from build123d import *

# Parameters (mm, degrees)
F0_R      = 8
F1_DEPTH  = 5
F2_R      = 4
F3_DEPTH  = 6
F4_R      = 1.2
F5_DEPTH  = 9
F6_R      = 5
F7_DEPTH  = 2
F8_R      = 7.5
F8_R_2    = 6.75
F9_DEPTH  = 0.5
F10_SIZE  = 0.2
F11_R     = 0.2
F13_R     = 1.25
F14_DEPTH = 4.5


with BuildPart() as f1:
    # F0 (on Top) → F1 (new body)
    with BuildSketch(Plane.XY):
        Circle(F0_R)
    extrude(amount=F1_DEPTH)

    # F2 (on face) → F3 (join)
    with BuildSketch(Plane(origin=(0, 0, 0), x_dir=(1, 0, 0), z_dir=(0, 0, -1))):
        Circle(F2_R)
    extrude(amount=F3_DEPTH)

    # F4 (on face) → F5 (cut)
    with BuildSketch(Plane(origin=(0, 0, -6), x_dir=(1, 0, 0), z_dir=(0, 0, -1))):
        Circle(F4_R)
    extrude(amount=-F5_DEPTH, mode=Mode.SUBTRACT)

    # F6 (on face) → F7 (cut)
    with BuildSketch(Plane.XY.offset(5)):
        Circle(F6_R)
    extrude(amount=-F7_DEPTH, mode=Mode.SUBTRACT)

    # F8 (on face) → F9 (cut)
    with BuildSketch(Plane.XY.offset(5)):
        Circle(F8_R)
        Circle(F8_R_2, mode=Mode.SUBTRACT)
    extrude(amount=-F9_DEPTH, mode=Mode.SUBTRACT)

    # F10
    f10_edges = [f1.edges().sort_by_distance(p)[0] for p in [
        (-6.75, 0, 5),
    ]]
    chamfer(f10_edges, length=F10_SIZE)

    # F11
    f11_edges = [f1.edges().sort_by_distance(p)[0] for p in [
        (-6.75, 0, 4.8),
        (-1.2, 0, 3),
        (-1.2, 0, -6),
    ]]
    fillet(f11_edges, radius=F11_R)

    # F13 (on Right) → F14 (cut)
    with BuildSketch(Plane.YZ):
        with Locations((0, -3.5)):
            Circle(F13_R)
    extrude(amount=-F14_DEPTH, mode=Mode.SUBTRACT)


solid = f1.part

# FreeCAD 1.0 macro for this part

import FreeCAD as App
import Part
import Sketcher
from FreeCAD import Vector


def edges_at(feature, points):
    """Names of the edges that pass closest to the given points."""
    edges = feature.Shape.Edges
    near = lambda p: min(range(len(edges)), key=lambda i: edges[i].distToShape(Part.Vertex(*p))[0])
    return sorted({f"Edge{near(p) + 1}" for p in points})

doc = App.newDocument("Part")
body = doc.addObject("PartDesign::Body", "Body")

sketch1 = body.newObject("Sketcher::SketchObject", "Sketch")
sketch1.AttachmentSupport = (doc.getObject("XY_Plane"), [""])
sketch1.MapMode = "FlatFace"
sketch1.addGeometry(Part.Circle(Vector(0, 0, 0), Vector(0, 0, 1), 8), False)
sketch1.addConstraint(Sketcher.Constraint("Coincident", 0, 3, -1, 1))
sketch1.addConstraint(Sketcher.Constraint("Diameter", 0, 16.0))
pad1 = body.newObject("PartDesign::Pad", "Pad")
pad1.Profile = sketch1
pad1.Length = 5

sketch2 = body.newObject("Sketcher::SketchObject", "Sketch001")
sketch2.AttachmentSupport = (doc.getObject("XY_Plane"), [""])
sketch2.MapMode = "FlatFace"
sketch2.addGeometry(Part.Circle(Vector(0, 0, 0), Vector(0, 0, 1), 4), False)
sketch2.addConstraint(Sketcher.Constraint("Coincident", 0, 3, -1, 1))
sketch2.addConstraint(Sketcher.Constraint("Diameter", 0, 8.0))
pad2 = body.newObject("PartDesign::Pad", "Pad001")
pad2.Profile = sketch2
pad2.Length = 6
pad2.Reversed = True

sketch3 = body.newObject("Sketcher::SketchObject", "Sketch002")
sketch3.AttachmentSupport = (doc.getObject("XY_Plane"), [""])
sketch3.MapMode = "FlatFace"
sketch3.AttachmentOffset = App.Placement(Vector(0, 0, -6), App.Rotation())
sketch3.addGeometry(Part.Circle(Vector(0, 0, 0), Vector(0, 0, 1), 1.2), False)
sketch3.addConstraint(Sketcher.Constraint("Coincident", 0, 3, -1, 1))
sketch3.addConstraint(Sketcher.Constraint("Diameter", 0, 2.4))
pocket1 = body.newObject("PartDesign::Pocket", "Pocket")
pocket1.Profile = sketch3
pocket1.Length = 9
pocket1.Reversed = True

sketch4 = body.newObject("Sketcher::SketchObject", "Sketch003")
sketch4.AttachmentSupport = (doc.getObject("XY_Plane"), [""])
sketch4.MapMode = "FlatFace"
sketch4.AttachmentOffset = App.Placement(Vector(0, 0, 5), App.Rotation())
sketch4.addGeometry(Part.Circle(Vector(0, 0, 0), Vector(0, 0, 1), 5), False)
sketch4.addConstraint(Sketcher.Constraint("Coincident", 0, 3, -1, 1))
sketch4.addConstraint(Sketcher.Constraint("Diameter", 0, 10.0))
pocket2 = body.newObject("PartDesign::Pocket", "Pocket001")
pocket2.Profile = sketch4
pocket2.Length = 2

sketch5 = body.newObject("Sketcher::SketchObject", "Sketch004")
sketch5.AttachmentSupport = (doc.getObject("XY_Plane"), [""])
sketch5.MapMode = "FlatFace"
sketch5.AttachmentOffset = App.Placement(Vector(0, 0, 5), App.Rotation())
sketch5.addGeometry(Part.Circle(Vector(0, 0, 0), Vector(0, 0, 1), 8), False)
sketch5.addGeometry(Part.Circle(Vector(0, 0, 0), Vector(0, 0, 1), 7), False)
sketch5.addConstraint(Sketcher.Constraint("Coincident", 0, 3, -1, 1))
sketch5.addConstraint(Sketcher.Constraint("Coincident", 1, 3, -1, 1))
sketch5.addConstraint(Sketcher.Constraint("Diameter", 0, 15.0))
sketch5.addConstraint(Sketcher.Constraint("Diameter", 1, 13.5))
pocket3 = body.newObject("PartDesign::Pocket", "Pocket002")
pocket3.Profile = sketch5
pocket3.Length = 0.5
doc.recompute()

chamfer = body.newObject("PartDesign::Chamfer", "Chamfer")
chamfer.Base = (pocket3, edges_at(pocket3, [(-6.75, 0, 5)]))
chamfer.Size = 0.2
doc.recompute()

fillet = body.newObject("PartDesign::Fillet", "Fillet")
fillet.Base = (chamfer, edges_at(chamfer, [(-6.75, 0, 4.8), (-1.2, 0, 3), (-1.2, 0, -6)]))
fillet.Radius = 0.2

sketch6 = body.newObject("Sketcher::SketchObject", "Sketch005")
sketch6.AttachmentSupport = (doc.getObject("YZ_Plane"), [""])
sketch6.MapMode = "FlatFace"
sketch6.addGeometry(Part.Circle(Vector(0, -3.5, 0), Vector(0, 0, 1), 1.2), False)
sketch6.addConstraint(Sketcher.Constraint("PointOnObject", 0, 3, -2))
sketch6.addConstraint(Sketcher.Constraint("Diameter", 0, 2.5))
sketch6.addConstraint(Sketcher.Constraint("DistanceY", 0, 3, -1, 1, 3.5))
pocket4 = body.newObject("PartDesign::Pocket", "Pocket003")
pocket4.Profile = sketch6
pocket4.Length = 4.5

doc.recompute()
